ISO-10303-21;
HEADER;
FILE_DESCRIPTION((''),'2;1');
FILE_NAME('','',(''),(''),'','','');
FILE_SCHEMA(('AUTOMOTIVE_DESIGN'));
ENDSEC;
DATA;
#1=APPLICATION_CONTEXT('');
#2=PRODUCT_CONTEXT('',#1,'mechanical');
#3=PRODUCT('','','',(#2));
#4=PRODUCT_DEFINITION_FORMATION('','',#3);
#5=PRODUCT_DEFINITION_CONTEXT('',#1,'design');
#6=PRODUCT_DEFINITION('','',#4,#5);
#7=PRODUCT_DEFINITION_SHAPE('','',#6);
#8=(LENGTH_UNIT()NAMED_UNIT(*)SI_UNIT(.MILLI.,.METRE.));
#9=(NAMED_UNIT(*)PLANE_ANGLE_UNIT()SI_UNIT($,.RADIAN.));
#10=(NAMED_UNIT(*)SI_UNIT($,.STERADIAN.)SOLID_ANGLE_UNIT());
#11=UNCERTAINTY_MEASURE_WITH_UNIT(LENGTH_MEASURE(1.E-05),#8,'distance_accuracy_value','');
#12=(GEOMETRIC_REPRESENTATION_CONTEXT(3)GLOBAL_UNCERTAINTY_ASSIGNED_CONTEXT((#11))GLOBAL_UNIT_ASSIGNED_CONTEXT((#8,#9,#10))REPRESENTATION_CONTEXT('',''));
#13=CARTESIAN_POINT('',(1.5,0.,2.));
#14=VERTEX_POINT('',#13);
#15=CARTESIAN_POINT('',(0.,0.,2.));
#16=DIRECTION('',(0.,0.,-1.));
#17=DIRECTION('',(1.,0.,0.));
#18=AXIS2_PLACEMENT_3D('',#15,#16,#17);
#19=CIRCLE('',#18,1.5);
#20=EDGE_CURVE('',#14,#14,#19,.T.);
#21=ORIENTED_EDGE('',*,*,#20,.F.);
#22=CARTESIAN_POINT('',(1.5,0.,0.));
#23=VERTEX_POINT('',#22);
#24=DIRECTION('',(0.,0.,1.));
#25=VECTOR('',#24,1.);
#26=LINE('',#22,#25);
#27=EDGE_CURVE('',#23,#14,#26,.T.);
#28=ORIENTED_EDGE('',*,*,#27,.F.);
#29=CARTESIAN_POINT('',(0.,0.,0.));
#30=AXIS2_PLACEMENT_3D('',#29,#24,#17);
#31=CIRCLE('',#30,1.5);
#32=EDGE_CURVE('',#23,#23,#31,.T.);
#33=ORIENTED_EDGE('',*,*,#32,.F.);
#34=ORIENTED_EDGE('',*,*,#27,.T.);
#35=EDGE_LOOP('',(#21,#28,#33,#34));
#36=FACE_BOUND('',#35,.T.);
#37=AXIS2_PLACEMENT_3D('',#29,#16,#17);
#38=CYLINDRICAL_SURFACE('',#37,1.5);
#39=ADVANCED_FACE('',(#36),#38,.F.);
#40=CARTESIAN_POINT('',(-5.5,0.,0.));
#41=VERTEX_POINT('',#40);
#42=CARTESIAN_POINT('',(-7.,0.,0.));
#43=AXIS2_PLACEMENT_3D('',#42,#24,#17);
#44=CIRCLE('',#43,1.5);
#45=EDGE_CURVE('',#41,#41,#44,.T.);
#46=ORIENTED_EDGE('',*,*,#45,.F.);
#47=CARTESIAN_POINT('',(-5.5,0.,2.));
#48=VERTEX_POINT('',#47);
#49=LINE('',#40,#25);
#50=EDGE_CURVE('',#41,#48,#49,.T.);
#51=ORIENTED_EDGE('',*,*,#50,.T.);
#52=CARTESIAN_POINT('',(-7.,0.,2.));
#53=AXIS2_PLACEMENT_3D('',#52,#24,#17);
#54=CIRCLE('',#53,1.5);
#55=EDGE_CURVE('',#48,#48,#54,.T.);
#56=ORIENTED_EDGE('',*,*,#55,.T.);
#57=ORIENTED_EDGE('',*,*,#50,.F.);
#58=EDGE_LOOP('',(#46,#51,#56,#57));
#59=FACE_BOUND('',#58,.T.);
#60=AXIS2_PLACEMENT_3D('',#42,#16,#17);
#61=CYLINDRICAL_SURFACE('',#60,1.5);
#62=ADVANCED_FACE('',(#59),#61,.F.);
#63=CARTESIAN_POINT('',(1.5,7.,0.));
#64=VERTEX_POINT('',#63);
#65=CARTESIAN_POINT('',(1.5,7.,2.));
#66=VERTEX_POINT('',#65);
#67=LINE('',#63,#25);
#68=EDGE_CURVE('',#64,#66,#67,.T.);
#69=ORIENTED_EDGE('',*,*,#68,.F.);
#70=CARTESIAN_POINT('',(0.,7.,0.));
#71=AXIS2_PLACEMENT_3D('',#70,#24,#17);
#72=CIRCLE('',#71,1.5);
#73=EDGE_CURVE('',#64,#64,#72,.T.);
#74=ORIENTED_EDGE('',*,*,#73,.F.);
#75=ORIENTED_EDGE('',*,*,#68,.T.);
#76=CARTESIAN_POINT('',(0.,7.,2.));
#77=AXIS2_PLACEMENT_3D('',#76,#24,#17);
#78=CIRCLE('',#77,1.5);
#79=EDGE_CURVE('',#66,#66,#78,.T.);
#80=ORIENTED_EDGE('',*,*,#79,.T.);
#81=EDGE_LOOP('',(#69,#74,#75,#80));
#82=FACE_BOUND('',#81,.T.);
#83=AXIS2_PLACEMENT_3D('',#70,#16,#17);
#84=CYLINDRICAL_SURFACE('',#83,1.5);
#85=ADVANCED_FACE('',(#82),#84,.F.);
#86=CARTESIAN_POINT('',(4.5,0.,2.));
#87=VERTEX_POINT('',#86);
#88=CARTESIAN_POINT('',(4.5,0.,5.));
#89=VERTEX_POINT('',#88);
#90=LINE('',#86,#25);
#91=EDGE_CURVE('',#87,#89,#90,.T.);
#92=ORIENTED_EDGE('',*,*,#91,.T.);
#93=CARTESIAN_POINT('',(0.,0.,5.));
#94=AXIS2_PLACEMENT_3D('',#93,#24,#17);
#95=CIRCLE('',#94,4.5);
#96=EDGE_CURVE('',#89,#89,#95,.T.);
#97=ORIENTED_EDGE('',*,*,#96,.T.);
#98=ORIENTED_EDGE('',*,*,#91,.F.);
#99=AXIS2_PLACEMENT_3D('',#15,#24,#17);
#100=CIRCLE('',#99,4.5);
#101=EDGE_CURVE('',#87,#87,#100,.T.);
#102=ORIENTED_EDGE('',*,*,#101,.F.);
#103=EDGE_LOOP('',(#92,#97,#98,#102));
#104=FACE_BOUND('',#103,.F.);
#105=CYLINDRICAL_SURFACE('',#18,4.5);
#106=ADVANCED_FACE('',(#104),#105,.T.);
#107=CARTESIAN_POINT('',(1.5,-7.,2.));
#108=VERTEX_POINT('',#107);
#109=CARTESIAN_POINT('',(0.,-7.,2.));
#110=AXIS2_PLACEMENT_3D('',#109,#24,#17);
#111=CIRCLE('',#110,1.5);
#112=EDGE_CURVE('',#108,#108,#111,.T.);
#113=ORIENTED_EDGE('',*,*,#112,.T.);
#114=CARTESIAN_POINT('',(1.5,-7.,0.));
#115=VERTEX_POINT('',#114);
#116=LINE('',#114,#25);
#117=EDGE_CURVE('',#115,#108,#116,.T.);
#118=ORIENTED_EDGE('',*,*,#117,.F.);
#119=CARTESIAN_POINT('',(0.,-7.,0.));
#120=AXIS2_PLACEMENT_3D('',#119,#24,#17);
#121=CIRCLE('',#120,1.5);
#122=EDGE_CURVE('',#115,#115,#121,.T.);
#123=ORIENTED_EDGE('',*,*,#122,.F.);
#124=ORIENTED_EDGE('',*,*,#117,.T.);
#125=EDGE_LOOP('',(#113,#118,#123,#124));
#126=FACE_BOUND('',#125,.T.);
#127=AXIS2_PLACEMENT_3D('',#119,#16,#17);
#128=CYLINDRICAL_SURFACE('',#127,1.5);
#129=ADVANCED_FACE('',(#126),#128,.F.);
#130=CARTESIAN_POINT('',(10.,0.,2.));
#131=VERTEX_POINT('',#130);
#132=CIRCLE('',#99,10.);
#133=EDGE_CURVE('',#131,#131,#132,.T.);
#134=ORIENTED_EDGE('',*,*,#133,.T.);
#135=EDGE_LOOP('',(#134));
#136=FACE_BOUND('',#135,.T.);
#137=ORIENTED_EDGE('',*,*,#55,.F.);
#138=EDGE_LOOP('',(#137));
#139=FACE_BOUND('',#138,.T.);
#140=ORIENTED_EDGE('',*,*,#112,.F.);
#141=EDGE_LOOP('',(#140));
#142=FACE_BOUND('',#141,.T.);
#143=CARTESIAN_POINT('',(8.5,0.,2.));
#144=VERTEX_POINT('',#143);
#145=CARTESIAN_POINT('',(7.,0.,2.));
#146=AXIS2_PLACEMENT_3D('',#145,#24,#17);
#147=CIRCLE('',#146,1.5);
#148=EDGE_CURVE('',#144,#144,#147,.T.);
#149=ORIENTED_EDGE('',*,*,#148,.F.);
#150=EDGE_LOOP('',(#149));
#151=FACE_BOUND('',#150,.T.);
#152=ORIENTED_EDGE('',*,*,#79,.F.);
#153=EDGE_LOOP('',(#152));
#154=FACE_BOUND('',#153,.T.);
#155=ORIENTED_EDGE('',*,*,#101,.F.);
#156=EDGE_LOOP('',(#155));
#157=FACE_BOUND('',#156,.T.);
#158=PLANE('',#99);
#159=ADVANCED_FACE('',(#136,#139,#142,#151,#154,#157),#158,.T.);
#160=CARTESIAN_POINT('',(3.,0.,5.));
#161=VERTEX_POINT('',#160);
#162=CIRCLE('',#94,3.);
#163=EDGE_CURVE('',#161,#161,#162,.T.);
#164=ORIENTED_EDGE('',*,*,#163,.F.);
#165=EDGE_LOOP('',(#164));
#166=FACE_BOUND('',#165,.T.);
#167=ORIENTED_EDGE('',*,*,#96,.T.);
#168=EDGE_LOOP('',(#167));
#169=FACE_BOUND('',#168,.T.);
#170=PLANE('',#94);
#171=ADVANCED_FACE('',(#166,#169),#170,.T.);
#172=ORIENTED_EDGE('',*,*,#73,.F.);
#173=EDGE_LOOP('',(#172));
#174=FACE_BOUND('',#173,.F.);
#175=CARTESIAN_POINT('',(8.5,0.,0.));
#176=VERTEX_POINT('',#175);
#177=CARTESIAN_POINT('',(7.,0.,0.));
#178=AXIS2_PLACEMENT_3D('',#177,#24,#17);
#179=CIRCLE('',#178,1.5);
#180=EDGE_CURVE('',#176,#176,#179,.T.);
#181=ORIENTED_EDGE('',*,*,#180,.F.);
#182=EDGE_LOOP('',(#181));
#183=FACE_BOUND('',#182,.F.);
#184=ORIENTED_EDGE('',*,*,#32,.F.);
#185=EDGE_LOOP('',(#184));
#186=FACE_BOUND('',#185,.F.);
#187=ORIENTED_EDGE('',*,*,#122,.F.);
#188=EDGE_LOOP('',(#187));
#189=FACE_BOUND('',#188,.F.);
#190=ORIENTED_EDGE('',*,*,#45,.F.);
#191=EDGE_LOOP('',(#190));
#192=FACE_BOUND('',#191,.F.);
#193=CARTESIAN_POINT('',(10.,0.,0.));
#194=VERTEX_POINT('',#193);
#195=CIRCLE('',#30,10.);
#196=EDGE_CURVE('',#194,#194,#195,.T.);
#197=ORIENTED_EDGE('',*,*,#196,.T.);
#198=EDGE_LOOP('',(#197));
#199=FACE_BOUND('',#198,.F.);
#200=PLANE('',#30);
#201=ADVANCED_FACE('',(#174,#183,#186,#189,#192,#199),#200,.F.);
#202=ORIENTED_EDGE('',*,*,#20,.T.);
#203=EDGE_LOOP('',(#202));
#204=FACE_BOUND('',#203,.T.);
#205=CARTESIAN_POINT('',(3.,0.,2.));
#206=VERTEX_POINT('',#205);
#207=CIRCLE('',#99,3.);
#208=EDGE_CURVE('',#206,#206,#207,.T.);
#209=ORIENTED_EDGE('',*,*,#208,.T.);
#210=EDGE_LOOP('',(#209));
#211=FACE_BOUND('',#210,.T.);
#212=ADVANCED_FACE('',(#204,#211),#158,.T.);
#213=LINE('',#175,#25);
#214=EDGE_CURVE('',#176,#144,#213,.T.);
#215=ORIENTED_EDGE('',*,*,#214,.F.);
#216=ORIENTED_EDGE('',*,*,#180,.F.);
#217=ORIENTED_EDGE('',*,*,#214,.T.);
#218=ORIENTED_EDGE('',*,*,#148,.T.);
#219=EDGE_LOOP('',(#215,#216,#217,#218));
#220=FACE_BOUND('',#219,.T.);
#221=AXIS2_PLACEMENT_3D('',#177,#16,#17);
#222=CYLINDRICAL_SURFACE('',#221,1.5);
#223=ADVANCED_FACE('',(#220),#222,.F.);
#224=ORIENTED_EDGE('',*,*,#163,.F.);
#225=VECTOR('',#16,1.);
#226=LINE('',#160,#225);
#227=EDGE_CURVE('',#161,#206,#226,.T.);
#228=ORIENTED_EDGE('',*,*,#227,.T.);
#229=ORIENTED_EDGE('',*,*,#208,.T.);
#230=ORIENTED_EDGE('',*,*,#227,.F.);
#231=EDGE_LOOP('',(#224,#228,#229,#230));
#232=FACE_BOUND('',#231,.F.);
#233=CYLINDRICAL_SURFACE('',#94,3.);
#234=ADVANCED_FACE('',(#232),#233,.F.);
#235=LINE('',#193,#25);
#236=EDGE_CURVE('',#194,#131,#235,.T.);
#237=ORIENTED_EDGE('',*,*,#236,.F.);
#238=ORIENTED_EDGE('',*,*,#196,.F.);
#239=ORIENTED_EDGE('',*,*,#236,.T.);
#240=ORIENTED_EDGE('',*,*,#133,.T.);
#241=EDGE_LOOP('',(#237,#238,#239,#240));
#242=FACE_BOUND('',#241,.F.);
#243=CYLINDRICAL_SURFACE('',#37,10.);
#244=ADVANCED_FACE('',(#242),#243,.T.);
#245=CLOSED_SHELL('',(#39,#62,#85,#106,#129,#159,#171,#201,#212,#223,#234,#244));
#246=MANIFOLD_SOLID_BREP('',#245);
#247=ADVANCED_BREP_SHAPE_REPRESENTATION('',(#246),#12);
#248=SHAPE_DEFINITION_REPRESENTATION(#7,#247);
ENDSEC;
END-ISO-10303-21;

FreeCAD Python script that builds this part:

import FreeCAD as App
import Part
import Sketcher
from FreeCAD import Vector

doc = App.newDocument("Part")
params = doc.addObject("Spreadsheet::Sheet", "Params")
for row, (alias, value) in enumerate([
    ("sketch1_diameter", "20 mm"),
    ("sketch1_diameter2", "3 mm"),
    ("pad1_length", "2 mm"),
    ("sketch2_diameter", "9 mm"),
    ("sketch2_diameter2", "3 mm"),
    ("pad2_length", "3 mm"),
    ("sketch3_diameter", "6 mm"),
    ("pocket1_length", "3 mm"),
], start=1):
    params.set(f"A{row}", alias)
    params.set(f"B{row}", "=" + value)
    params.setAlias(f"B{row}", alias)

body = doc.addObject("PartDesign::Body", "Body")

# Sketch on XY plane
sketch1 = body.newObject("Sketcher::SketchObject", "Sketch")
sketch1.AttachmentSupport = (doc.getObject("XY_Plane"), [""])
sketch1.MapMode = "FlatFace"
sketch1.addGeometry([
    Part.Circle(Vector(0, 0, 0), Vector(0, 0, 1), 10),  # 0
    Part.Circle(Vector(0, -7, 0), Vector(0, 0, 1), 1.5),  # 1
    Part.Circle(Vector(-7, 0, 0), Vector(0, 0, 1), 1.5),  # 2
    Part.Circle(Vector(0, 0, 0), Vector(0, 0, 1), 1.5),  # 3
    Part.Circle(Vector(7, 0, 0), Vector(0, 0, 1), 1.5),  # 4
    Part.Circle(Vector(0, 7, 0), Vector(0, 0, 1), 1.5),  # 5
], False)
sketch1.addConstraint([
    Sketcher.Constraint("Coincident", 0, 3, -1, 1),
    Sketcher.Constraint("Coincident", 3, 3, -1, 1),
    Sketcher.Constraint("Equal", 1, 2),
    Sketcher.Constraint("Equal", 2, 3),
    Sketcher.Constraint("Equal", 3, 4),
    Sketcher.Constraint("Equal", 4, 5),
    Sketcher.Constraint("Symmetric", 2, 3, 4, 3, -1, 1),
    Sketcher.Constraint("Symmetric", 1, 3, 5, 3, -1, 1),
    Sketcher.Constraint("PointOnObject", 1, 3, -2),
    Sketcher.Constraint("PointOnObject", 2, 3, -1),
    Sketcher.Constraint("Diameter", 0, 20.0),
    Sketcher.Constraint("Diameter", 1, 3.0),
    Sketcher.Constraint("DistanceY", 1, 3, -1, 1, 7.0),
    Sketcher.Constraint("DistanceX", 2, 3, -1, 1, 7.0),
])
sketch1.setExpression("Constraints[10]", "Params.sketch1_diameter")
sketch1.setExpression("Constraints[11]", "Params.sketch1_diameter2")
pad1 = body.newObject("PartDesign::Pad", "Pad")
pad1.Profile = sketch1
pad1.setExpression("Length", "Params.pad1_length")

# Sketch on XY plane
sketch2 = body.newObject("Sketcher::SketchObject", "Sketch001")
sketch2.AttachmentSupport = (doc.getObject("XY_Plane"), [""])
sketch2.MapMode = "FlatFace"
sketch2.AttachmentOffset = App.Placement(Vector(0, 0, 2), App.Rotation())
sketch2.addGeometry([
    Part.Circle(Vector(0, 0, 0), Vector(0, 0, 1), 4.5),
    Part.Circle(Vector(0, 0, 0), Vector(0, 0, 1), 1.5),
], False)
sketch2.addConstraint([
    Sketcher.Constraint("Coincident", 0, 3, -1, 1),
    Sketcher.Constraint("Coincident", 1, 3, -1, 1),
    Sketcher.Constraint("Diameter", 0, 9.0),
    Sketcher.Constraint("Diameter", 1, 3.0),
])
sketch2.setExpression("Constraints[2]", "Params.sketch2_diameter")
sketch2.setExpression("Constraints[3]", "Params.sketch2_diameter2")
pad2 = body.newObject("PartDesign::Pad", "Pad001")
pad2.Profile = sketch2
pad2.setExpression("Length", "Params.pad2_length")

# Sketch on XY plane
sketch3 = body.newObject("Sketcher::SketchObject", "Sketch002")
sketch3.AttachmentSupport = (doc.getObject("XY_Plane"), [""])
sketch3.MapMode = "FlatFace"
sketch3.AttachmentOffset = App.Placement(Vector(0, 0, 5), App.Rotation())
sketch3.addGeometry(Part.Circle(Vector(0, 0, 0), Vector(0, 0, 1), 3), False)
sketch3.addConstraint([
    Sketcher.Constraint("Coincident", 0, 3, -1, 1),
    Sketcher.Constraint("Diameter", 0, 6.0),
])
sketch3.setExpression("Constraints[1]", "Params.sketch3_diameter")
pocket1 = body.newObject("PartDesign::Pocket", "Pocket")
pocket1.Profile = sketch3
pocket1.setExpression("Length", "Params.pocket1_length")

doc.recompute()
